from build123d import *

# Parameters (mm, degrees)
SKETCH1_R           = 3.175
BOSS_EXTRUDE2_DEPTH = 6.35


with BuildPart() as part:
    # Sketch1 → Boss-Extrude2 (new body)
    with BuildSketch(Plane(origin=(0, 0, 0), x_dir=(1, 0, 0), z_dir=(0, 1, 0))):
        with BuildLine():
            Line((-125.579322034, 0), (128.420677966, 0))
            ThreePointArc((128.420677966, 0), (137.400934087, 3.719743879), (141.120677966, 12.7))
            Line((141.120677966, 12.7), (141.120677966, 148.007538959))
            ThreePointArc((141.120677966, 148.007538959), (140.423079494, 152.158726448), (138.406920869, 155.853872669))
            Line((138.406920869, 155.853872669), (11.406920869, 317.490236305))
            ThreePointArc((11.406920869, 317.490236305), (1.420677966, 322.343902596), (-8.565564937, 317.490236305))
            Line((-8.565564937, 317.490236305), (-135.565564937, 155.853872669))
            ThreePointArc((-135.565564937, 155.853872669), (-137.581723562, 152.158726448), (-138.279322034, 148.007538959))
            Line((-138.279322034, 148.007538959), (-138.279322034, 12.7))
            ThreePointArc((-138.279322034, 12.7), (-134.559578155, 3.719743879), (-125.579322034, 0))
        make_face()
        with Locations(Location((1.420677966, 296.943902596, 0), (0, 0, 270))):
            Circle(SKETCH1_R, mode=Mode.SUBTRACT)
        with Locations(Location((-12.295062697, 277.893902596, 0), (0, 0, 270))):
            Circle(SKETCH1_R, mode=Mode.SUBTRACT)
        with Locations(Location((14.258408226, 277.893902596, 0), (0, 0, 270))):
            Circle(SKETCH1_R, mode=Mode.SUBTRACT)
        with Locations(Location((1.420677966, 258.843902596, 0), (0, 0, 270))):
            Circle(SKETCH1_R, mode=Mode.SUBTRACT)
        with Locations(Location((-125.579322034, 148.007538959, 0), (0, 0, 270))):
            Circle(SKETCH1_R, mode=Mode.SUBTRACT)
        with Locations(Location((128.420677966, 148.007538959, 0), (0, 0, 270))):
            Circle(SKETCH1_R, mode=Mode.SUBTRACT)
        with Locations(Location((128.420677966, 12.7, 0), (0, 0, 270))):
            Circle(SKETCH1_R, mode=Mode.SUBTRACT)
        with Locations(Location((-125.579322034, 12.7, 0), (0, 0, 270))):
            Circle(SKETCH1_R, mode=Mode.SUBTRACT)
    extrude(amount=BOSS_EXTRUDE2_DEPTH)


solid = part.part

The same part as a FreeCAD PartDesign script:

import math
import FreeCAD as App
import Part
import Sketcher
from FreeCAD import Vector
Q = App.Units.Quantity

doc = App.newDocument("Part")
params = doc.addObject("Spreadsheet::Sheet", "Params")
for row, (alias, value) in enumerate([
    ("sketch1_radius", "0.5 in"),
    ("sketch1_diameter", "0.25 in"),
    ("sketch1_width", "10 in"),
    ("pad1_length", "0.25 in"),
], start=1):
    params.set(f"A{row}", alias)
    params.set(f"B{row}", "=" + value)
    params.setAlias(f"B{row}", alias)

body = doc.addObject("PartDesign::Body", "Body")

sketch1 = doc.addObject("Sketcher::SketchObject", "Sketch")
body.addObject(sketch1)
sketch1.AttachmentSupport = (doc.XZ_Plane, [""])
sketch1.MapMode = "FlatFace"
sketch1.addGeometry([
    Part.LineSegment(Vector(-125.6, 0, 0), Vector(128.4, 0, 0)),
    Part.ArcOfCircle(Part.Circle(Vector(128.4, -12.7, 0), Vector(0, 0, 1), 12.7), math.radians(0), math.radians(90)),
    Part.LineSegment(Vector(141.1, -12.7, 0), Vector(141.1, -148, 0)),
    Part.ArcOfCircle(Part.Circle(Vector(128.4, -148, 0), Vector(0, 0, 1), 12.7), math.radians(-38), math.radians(0)),
    Part.LineSegment(Vector(138.4, -155.9, 0), Vector(11.4, -317.5, 0)),
    Part.ArcOfCircle(Part.Circle(Vector(1.4, -309.6, 0), Vector(0, 0, 1), 12.7), math.radians(-142), math.radians(-38)),
    Part.LineSegment(Vector(-8.6, -317.5, 0), Vector(-135.6, -155.9, 0)),
    Part.ArcOfCircle(Part.Circle(Vector(-125.6, -148, 0), Vector(0, 0, 1), 12.7), math.radians(180), math.radians(218)),
    Part.LineSegment(Vector(-138.3, -148, 0), Vector(-138.3, -12.7, 0)),
    Part.ArcOfCircle(Part.Circle(Vector(-125.6, -12.7, 0), Vector(0, 0, 1), 12.7), math.radians(90), math.radians(180)),
    Part.Circle(Vector(-125.6, -12.7, 0), Vector(0, 0, 1), 3.2),
    Part.Circle(Vector(-125.6, -148, 0), Vector(0, 0, 1), 3.2),
    Part.Circle(Vector(128.4, -12.7, 0), Vector(0, 0, 1), 3.2),
    Part.Circle(Vector(128.4, -148, 0), Vector(0, 0, 1), 3.2),
    Part.Circle(Vector(-12.3, -277.9, 0), Vector(0, 0, 1), 3.2),
    Part.Circle(Vector(1.4, -258.8, 0), Vector(0, 0, 1), 3.2),
    Part.Circle(Vector(14.3, -277.9, 0), Vector(0, 0, 1), 3.2),
    Part.Circle(Vector(1.4, -296.9, 0), Vector(0, 0, 1), 3.2),
], False)
sketch1.addConstraint([
    Sketcher.Constraint("Tangent", 0, 2, 1, 2),
    Sketcher.Constraint("Tangent", 1, 1, 2, 1),
    Sketcher.Constraint("Tangent", 2, 2, 3, 2),
    Sketcher.Constraint("Tangent", 3, 1, 4, 1),
    Sketcher.Constraint("Tangent", 4, 2, 5, 2),
    Sketcher.Constraint("Tangent", 5, 1, 6, 1),
    Sketcher.Constraint("Tangent", 6, 2, 7, 2),
    Sketcher.Constraint("Tangent", 7, 1, 8, 1),
    Sketcher.Constraint("Tangent", 8, 2, 9, 2),
    Sketcher.Constraint("Tangent", 9, 1, 0, 1),
    Sketcher.Constraint("Horizontal", 0),
    Sketcher.Constraint("Vertical", 2),
    Sketcher.Constraint("Vertical", 8),
    Sketcher.Constraint("Coincident", 10, 3, 9, 3),
    Sketcher.Constraint("Coincident", 11, 3, 7, 3),
    Sketcher.Constraint("Coincident", 12, 3, 1, 3),
    Sketcher.Constraint("Coincident", 13, 3, 3, 3),
    Sketcher.Constraint("Equal", 1, 3),
    Sketcher.Constraint("Equal", 3, 5),
    Sketcher.Constraint("Equal", 5, 7),
    Sketcher.Constraint("Equal", 7, 9),
    Sketcher.Constraint("Equal", 10, 11),
    Sketcher.Constraint("Equal", 11, 12),
    Sketcher.Constraint("Equal", 12, 13),
    Sketcher.Constraint("Equal", 13, 14),
    Sketcher.Constraint("Equal", 14, 15),
    Sketcher.Constraint("Equal", 15, 16),
    Sketcher.Constraint("Equal", 16, 17),
    Sketcher.Constraint("PointOnObject", 0, 2, -1),
    Sketcher.Constraint("Horizontal", 3, 3, 7, 3),
    Sketcher.Constraint("Horizontal", 14, 3, 16, 3),
    Sketcher.Constraint("Horizontal", 4, 2, 5, 1),
    Sketcher.Constraint("Vertical", 5, 3, 15, 3),
    Sketcher.Constraint("Vertical", 15, 3, 17, 3),
    Sketcher.Constraint("Radius", 1, Q("0.5 in")),
    Sketcher.Constraint("Diameter", 10, Q("0.25 in")),
    Sketcher.Constraint("DistanceX", 0, 1, 0, 2, Q("10 in")),
    Sketcher.Constraint("DistanceY", 5, 3, 15, 3, Q("2 in")),
    Sketcher.Constraint("DistanceY", 5, 3, 17, 3, Q("0.5 in")),
    Sketcher.Constraint("DistanceY", 5, 3, 14, 3, Q("1.25 in")),
    Sketcher.Constraint("DistanceY", 2, 2, 2, 1, Q("135.307539 mm")),
    Sketcher.Constraint("DistanceX", -1, 1, 16, 3, Q("14.258408 mm")),
    Sketcher.Constraint("DistanceX", -1, 1, 3, 1, Q("138.406921 mm")),
    Sketcher.Constraint("DistanceX", 14, 3, 5, 3, Q("13.715741 mm")),
    Sketcher.Constraint("DistanceX", 15, 3, 16, 3, Q("12.83773 mm")),
])
sketch1.setExpression("Constraints[34]", "Params.sketch1_radius")
sketch1.setExpression("Constraints[35]", "Params.sketch1_diameter")
sketch1.setExpression("Constraints[36]", "Params.sketch1_width")
pad1 = doc.addObject("PartDesign::Pad", "Pad")
body.addObject(pad1)
pad1.Profile = sketch1
pad1.setExpression("Length", "Params.pad1_length")
pad1.Reversed = True

doc.recompute()
